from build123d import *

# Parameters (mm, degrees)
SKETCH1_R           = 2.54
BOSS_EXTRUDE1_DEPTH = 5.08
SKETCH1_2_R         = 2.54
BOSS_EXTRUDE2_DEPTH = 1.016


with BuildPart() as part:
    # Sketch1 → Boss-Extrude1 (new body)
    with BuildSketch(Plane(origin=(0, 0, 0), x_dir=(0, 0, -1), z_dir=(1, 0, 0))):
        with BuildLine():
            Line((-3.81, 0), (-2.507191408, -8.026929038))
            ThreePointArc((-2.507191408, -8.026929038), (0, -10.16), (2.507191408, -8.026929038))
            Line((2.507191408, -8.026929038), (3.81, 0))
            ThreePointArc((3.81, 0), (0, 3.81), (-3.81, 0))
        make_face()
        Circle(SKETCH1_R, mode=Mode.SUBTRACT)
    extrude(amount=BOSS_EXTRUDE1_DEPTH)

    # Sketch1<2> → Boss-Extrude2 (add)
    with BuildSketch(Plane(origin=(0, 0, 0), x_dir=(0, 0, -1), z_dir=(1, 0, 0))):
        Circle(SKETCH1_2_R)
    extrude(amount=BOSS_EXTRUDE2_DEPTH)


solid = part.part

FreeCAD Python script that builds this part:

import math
import FreeCAD as App
import Part
import Sketcher
Q = App.Units.Quantity

doc = App.newDocument("Part")
body = doc.addObject("PartDesign::Body", "Body")

# Sketch on YZ plane
sketch1 = body.newObject("Sketcher::SketchObject", "Sketch")
sketch1.AttachmentSupport = (doc.getObject("YZ_Plane"), [""])
sketch1.MapMode = "FlatFace"
sketch1.addGeometry(Part.LineSegment(App.Vector(0, 3.8, 0), App.Vector(-8, 2.5, 0)), False)
sketch1.addGeometry(Part.ArcOfCircle(Part.Circle(App.Vector(-7.6, 0, 0), App.Vector(0, 0, 1), 2.5), math.radians(99), math.radians(261)), False)
sketch1.addGeometry(Part.LineSegment(App.Vector(-8, -2.5, 0), App.Vector(0, -3.8, 0)), False)
sketch1.addGeometry(Part.ArcOfCircle(Part.Circle(App.Vector(0, 0, 0), App.Vector(0, 0, 1), 3.8), math.radians(-90), math.radians(90)), False)
sketch1.addGeometry(Part.Circle(App.Vector(0, 0, 0), App.Vector(0, 0, 1), 2.5), False)
sketch1.addConstraint(Sketcher.Constraint("Tangent", 0, 2, 1, 1))
sketch1.addConstraint(Sketcher.Constraint("Tangent", 1, 2, 2, 1))
sketch1.addConstraint(Sketcher.Constraint("Coincident", 2, 2, 3, 1))
sketch1.addConstraint(Sketcher.Constraint("Coincident", 3, 2, 0, 1))
sketch1.addConstraint(Sketcher.Constraint("Coincident", 3, 3, -1, 1))
sketch1.addConstraint(Sketcher.Constraint("Coincident", 4, 3, -1, 1))
sketch1.addConstraint(Sketcher.Constraint("Equal", 1, 4))
sketch1.addConstraint(Sketcher.Constraint("Symmetric", 0, 2, 1, 2, -1))
sketch1.addConstraint(Sketcher.Constraint("PointOnObject", 2, 2, -2))
sketch1.addConstraint(Sketcher.Constraint("Diameter", 4, Q("0.2 in")))
sketch1.addConstraint(Sketcher.Constraint("Radius", 3, Q("0.15 in")))
sketch1.addConstraint(Sketcher.Constraint("DistanceX", 1, 3, -1, 1, Q("0.3 in")))
pad1 = body.newObject("PartDesign::Pad", "Pad")
pad1.Profile = sketch1
pad1.Length = Q("0.2 in")

# Sketch on YZ plane
sketch2 = body.newObject("Sketcher::SketchObject", "Sketch001")
sketch2.AttachmentSupport = (doc.getObject("YZ_Plane"), [""])
sketch2.MapMode = "FlatFace"
sketch2.addGeometry(Part.Circle(App.Vector(0, 0, 0), App.Vector(0, 0, 1), 2.5), False)
sketch2.addConstraint(Sketcher.Constraint("Coincident", 0, 3, -1, 1))
sketch2.addConstraint(Sketcher.Constraint("Diameter", 0, Q("0.2 in")))
pad2 = body.newObject("PartDesign::Pad", "Pad001")
pad2.Profile = sketch2
pad2.Length = Q("0.04 in")

doc.recompute()
